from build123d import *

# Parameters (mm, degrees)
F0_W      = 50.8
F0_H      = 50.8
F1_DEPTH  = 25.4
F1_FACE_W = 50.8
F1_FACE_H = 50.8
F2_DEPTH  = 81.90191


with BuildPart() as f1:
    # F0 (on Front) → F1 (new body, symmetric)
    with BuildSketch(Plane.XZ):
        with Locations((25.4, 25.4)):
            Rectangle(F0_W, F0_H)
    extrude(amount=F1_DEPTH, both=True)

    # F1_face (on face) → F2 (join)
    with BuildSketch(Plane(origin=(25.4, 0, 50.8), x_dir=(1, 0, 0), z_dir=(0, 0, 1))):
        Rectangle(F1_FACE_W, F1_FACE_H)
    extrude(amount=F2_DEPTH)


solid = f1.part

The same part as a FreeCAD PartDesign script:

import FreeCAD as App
import Part
import Sketcher
from FreeCAD import Vector
Q = App.Units.Quantity

doc = App.newDocument("Part")
body = doc.addObject("PartDesign::Body", "Body")

# Sketch on XZ plane
sketch1 = body.newObject("Sketcher::SketchObject", "Sketch")
sketch1.AttachmentSupport = (doc.getObject("XZ_Plane"), [""])
sketch1.MapMode = "FlatFace"
sketch1.addGeometry([
    Part.LineSegment(Vector(0, 51, 0), Vector(0, 0, 0)),
    Part.LineSegment(Vector(0, 0, 0), Vector(51, 0, 0)),
    Part.LineSegment(Vector(51, 0, 0), Vector(51, 51, 0)),
    Part.LineSegment(Vector(51, 51, 0), Vector(0, 51, 0)),
], False)
sketch1.addConstraint([
    Sketcher.Constraint("Coincident", 0, 2, 1, 1),
    Sketcher.Constraint("Coincident", 1, 2, 2, 1),
    Sketcher.Constraint("Coincident", 2, 2, 3, 1),
    Sketcher.Constraint("Coincident", 3, 2, 0, 1),
    Sketcher.Constraint("Vertical", 0),
    Sketcher.Constraint("Horizontal", 1),
    Sketcher.Constraint("Vertical", 2),
    Sketcher.Constraint("Horizontal", 3),
    Sketcher.Constraint("Coincident", 0, 2, -1, 1),
    Sketcher.Constraint("Equal", 3, 0),
    Sketcher.Constraint("DistanceX", 1, 1, 1, 2, Q("2 in")),
])
pad1 = body.newObject("PartDesign::Pad", "Pad")
pad1.Profile = sketch1
pad1.Length = Q("2 in")
pad1.Midplane = True

# Sketch on XY plane
sketch2 = body.newObject("Sketcher::SketchObject", "Sketch001")
sketch2.AttachmentSupport = (doc.getObject("XY_Plane"), [""])
sketch2.MapMode = "FlatFace"
sketch2.AttachmentOffset = App.Placement(Vector(0, 0, 2 * 25.4), App.Rotation())
sketch2.addGeometry([
    Part.LineSegment(Vector(0, 25, 0), Vector(0, -25, 0)),
    Part.LineSegment(Vector(0, -25, 0), Vector(51, -25, 0)),
    Part.LineSegment(Vector(51, -25, 0), Vector(51, 25, 0)),
    Part.LineSegment(Vector(51, 25, 0), Vector(0, 25, 0)),
], False)
sketch2.addConstraint([
    Sketcher.Constraint("Coincident", 0, 2, 1, 1),
    Sketcher.Constraint("Coincident", 1, 2, 2, 1),
    Sketcher.Constraint("Coincident", 2, 2, 3, 1),
    Sketcher.Constraint("Coincident", 3, 2, 0, 1),
    Sketcher.Constraint("Vertical", 0),
    Sketcher.Constraint("Horizontal", 1),
    Sketcher.Constraint("Vertical", 2),
    Sketcher.Constraint("Horizontal", 3),
    Sketcher.Constraint("Symmetric", 0, 2, 3, 2, -1, 1),
    Sketcher.Constraint("Equal", 3, 0),
    Sketcher.Constraint("DistanceX", 1, 1, 1, 2, Q("2 in")),
])
pad2 = body.newObject("PartDesign::Pad", "Pad001")
pad2.Profile = sketch2
pad2.Length = 81.90191

doc.recompute()
